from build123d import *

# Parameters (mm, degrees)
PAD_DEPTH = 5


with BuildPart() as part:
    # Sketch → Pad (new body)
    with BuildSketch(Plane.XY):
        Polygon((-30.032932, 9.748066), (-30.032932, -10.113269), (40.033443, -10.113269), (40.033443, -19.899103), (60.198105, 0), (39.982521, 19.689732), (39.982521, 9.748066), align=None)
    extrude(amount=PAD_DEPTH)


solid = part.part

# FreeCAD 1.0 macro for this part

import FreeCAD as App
import Part
import Sketcher
from FreeCAD import Vector


def add_polygon(sketch, points):
    """Adds a closed chain of lines whose ends are joined by coincident constraints."""
    first, n = sketch.GeometryCount, len(points)
    for a, b in zip(points, points[1:] + points[:1]):
        sketch.addGeometry(Part.LineSegment(App.Vector(*a, 0), App.Vector(*b, 0)), False)
    for i in range(n):
        sketch.addConstraint(Sketcher.Constraint("Coincident", first + i, 2, first + (i + 1) % n, 1))

doc = App.newDocument("Part")
body = doc.addObject("PartDesign::Body", "Body")

# Sketch on XY plane
sketch1 = body.newObject("Sketcher::SketchObject", "Sketch")
sketch1.AttachmentSupport = (doc.getObject("XY_Plane"), [""])
sketch1.MapMode = "FlatFace"
add_polygon(sketch1, [(-30, 10), (-30, -10), (40, -10), (40, -20), (60, 0), (40, 20), (40, 10)])  # lines 0-6
sketch1.addConstraint([
    Sketcher.Constraint("Vertical", 0),
    Sketcher.Constraint("Horizontal", 1),
    Sketcher.Constraint("Vertical", 2),
    Sketcher.Constraint("Vertical", 5),
    Sketcher.Constraint("Horizontal", 6),
    Sketcher.Constraint("PointOnObject", 3, 2, -1),
    Sketcher.Constraint("DistanceY", 1, 2, 4, 2, 29.803001),
    Sketcher.Constraint("Distance", 4, 28.219769),
    Sketcher.Constraint("DistanceX", 1, 1, 1, 2, 70.066375),
    Sketcher.Constraint("DistanceX", 6, 2, 6, 1, 70.015453),
    Sketcher.Constraint("DistanceY", 0, 2, 0, 1, 19.861335),
    Sketcher.Constraint("DistanceY", 2, 2, 2, 1, 9.785834),
    Sketcher.Constraint("DistanceX", 0, 2, -1, 1, 30.032932),
    Sketcher.Constraint("DistanceY", 0, 2, -1, 1, 10.113269),
])
pad1 = body.newObject("PartDesign::Pad", "Pad")
pad1.Profile = sketch1
pad1.Length = 5

doc.recompute()
